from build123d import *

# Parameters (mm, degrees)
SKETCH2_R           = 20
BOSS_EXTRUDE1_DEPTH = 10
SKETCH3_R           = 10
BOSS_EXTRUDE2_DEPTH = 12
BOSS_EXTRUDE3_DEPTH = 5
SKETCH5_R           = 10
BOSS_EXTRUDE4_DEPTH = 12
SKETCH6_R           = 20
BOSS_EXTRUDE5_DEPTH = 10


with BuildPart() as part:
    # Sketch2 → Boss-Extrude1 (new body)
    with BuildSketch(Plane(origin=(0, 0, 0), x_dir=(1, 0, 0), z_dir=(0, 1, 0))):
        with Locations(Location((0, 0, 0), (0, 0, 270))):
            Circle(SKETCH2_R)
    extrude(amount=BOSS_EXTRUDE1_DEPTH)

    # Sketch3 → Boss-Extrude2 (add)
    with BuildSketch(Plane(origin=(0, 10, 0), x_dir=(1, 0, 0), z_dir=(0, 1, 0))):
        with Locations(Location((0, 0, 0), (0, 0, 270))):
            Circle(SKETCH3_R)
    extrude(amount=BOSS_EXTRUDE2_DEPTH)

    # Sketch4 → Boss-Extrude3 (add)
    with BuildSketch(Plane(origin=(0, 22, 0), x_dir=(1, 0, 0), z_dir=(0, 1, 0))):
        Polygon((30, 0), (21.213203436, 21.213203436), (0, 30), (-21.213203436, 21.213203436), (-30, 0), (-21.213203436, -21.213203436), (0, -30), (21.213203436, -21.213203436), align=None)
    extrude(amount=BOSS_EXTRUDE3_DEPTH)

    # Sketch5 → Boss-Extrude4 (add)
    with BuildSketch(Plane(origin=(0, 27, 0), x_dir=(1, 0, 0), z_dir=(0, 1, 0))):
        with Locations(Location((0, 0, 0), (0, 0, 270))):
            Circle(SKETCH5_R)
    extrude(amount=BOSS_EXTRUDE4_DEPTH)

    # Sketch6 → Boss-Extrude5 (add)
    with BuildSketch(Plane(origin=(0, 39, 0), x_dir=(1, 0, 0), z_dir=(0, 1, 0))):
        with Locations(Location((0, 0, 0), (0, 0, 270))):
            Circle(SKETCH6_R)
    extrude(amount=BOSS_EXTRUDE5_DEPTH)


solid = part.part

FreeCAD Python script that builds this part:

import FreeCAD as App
import Part
import Sketcher
Q = App.Units.Quantity

doc = App.newDocument("Part")
body = doc.addObject("PartDesign::Body", "Body")

# Sketch on XZ plane
sketch1 = body.newObject("Sketcher::SketchObject", "Sketch")
sketch1.AttachmentSupport = (doc.getObject("XZ_Plane"), [""])
sketch1.MapMode = "FlatFace"
sketch1.addGeometry(Part.Circle(App.Vector(0, 0, 0), App.Vector(0, 0, 1), 20), False)
sketch1.addConstraint([
    Sketcher.Constraint("Coincident", 0, 3, -1, 1),
    Sketcher.Constraint("Diameter", 0, Q("40 mm")),
])
pad1 = body.newObject("PartDesign::Pad", "Pad")
pad1.Profile = sketch1
pad1.Length = 10
pad1.Reversed = True

# Sketch on XZ plane
sketch2 = body.newObject("Sketcher::SketchObject", "Sketch001")
sketch2.AttachmentSupport = (doc.getObject("XZ_Plane"), [""])
sketch2.MapMode = "FlatFace"
sketch2.AttachmentOffset = App.Placement(App.Vector(0, 0, -10), App.Rotation())
sketch2.addGeometry(Part.Circle(App.Vector(0, 0, 0), App.Vector(0, 0, 1), 10), False)
sketch2.addConstraint([
    Sketcher.Constraint("Coincident", 0, 3, -1, 1),
    Sketcher.Constraint("Diameter", 0, Q("20 mm")),
])
pad2 = body.newObject("PartDesign::Pad", "Pad001")
pad2.Profile = sketch2
pad2.Length = 12
pad2.Reversed = True

# Sketch on XZ plane
sketch3 = body.newObject("Sketcher::SketchObject", "Sketch002")
sketch3.AttachmentSupport = (doc.getObject("XZ_Plane"), [""])
sketch3.MapMode = "FlatFace"
sketch3.AttachmentOffset = App.Placement(App.Vector(0, 0, -22), App.Rotation())
sketch3.addGeometry([
    Part.LineSegment(App.Vector(30, 0, 0), App.Vector(21, -21, 0)),  # 0
    Part.LineSegment(App.Vector(21, -21, 0), App.Vector(0, -30, 0)),  # 1
    Part.LineSegment(App.Vector(0, -30, 0), App.Vector(-21, -21, 0)),  # 2
    Part.LineSegment(App.Vector(-21, -21, 0), App.Vector(-30, 0, 0)),  # 3
    Part.LineSegment(App.Vector(-30, 0, 0), App.Vector(-21, 21, 0)),  # 4
    Part.LineSegment(App.Vector(-21, 21, 0), App.Vector(0, 30, 0)),  # 5
    Part.LineSegment(App.Vector(0, 30, 0), App.Vector(21, 21, 0)),  # 6
    Part.LineSegment(App.Vector(21, 21, 0), App.Vector(30, 0, 0)),  # 7
], False)
sketch3.addConstraint([
    Sketcher.Constraint("Coincident", 0, 2, 1, 1),
    Sketcher.Constraint("Coincident", 1, 2, 2, 1),
    Sketcher.Constraint("Coincident", 2, 2, 3, 1),
    Sketcher.Constraint("Coincident", 3, 2, 4, 1),
    Sketcher.Constraint("Coincident", 4, 2, 5, 1),
    Sketcher.Constraint("Coincident", 5, 2, 6, 1),
    Sketcher.Constraint("Coincident", 6, 2, 7, 1),
    Sketcher.Constraint("Coincident", 7, 2, 0, 1),
    Sketcher.Constraint("Symmetric", 0, 2, 4, 2, -1, 1),
    Sketcher.Constraint("Symmetric", 1, 2, 5, 2, -1, 1),
    Sketcher.Constraint("Symmetric", 2, 2, 6, 2, -1, 1),
    Sketcher.Constraint("Symmetric", 3, 2, 7, 2, -1, 1),
    Sketcher.Constraint("Symmetric", 0, 2, 2, 2, -2),
    Sketcher.Constraint("PointOnObject", 1, 2, -2),
    Sketcher.Constraint("PointOnObject", 3, 2, -1),
    Sketcher.Constraint("Perpendicular", 0, 2),
    Sketcher.Constraint("Equal", 0, 1),
    Sketcher.Constraint("DistanceY", 1, 2, -1, 1, Q("30 mm")),
    Sketcher.Constraint("Angle", 0, Q("-112.5 deg")),
])
pad3 = body.newObject("PartDesign::Pad", "Pad002")
pad3.Profile = sketch3
pad3.Length = 5
pad3.Reversed = True

# Sketch on XZ plane
sketch4 = body.newObject("Sketcher::SketchObject", "Sketch003")
sketch4.AttachmentSupport = (doc.getObject("XZ_Plane"), [""])
sketch4.MapMode = "FlatFace"
sketch4.AttachmentOffset = App.Placement(App.Vector(0, 0, -27), App.Rotation())
sketch4.addGeometry(Part.Circle(App.Vector(0, 0, 0), App.Vector(0, 0, 1), 10), False)
sketch4.addConstraint([
    Sketcher.Constraint("Coincident", 0, 3, -1, 1),
    Sketcher.Constraint("Diameter", 0, Q("20 mm")),
])
pad4 = body.newObject("PartDesign::Pad", "Pad003")
pad4.Profile = sketch4
pad4.Length = 12
pad4.Reversed = True

# Sketch on XZ plane
sketch5 = body.newObject("Sketcher::SketchObject", "Sketch004")
sketch5.AttachmentSupport = (doc.getObject("XZ_Plane"), [""])
sketch5.MapMode = "FlatFace"
sketch5.AttachmentOffset = App.Placement(App.Vector(0, 0, -39), App.Rotation())
sketch5.addGeometry(Part.Circle(App.Vector(0, 0, 0), App.Vector(0, 0, 1), 20), False)
sketch5.addConstraint([
    Sketcher.Constraint("Coincident", 0, 3, -1, 1),
    Sketcher.Constraint("Diameter", 0, Q("40 mm")),
])
pad5 = body.newObject("PartDesign::Pad", "Pad004")
pad5.Profile = sketch5
pad5.Length = 10
pad5.Reversed = True

doc.recompute()
